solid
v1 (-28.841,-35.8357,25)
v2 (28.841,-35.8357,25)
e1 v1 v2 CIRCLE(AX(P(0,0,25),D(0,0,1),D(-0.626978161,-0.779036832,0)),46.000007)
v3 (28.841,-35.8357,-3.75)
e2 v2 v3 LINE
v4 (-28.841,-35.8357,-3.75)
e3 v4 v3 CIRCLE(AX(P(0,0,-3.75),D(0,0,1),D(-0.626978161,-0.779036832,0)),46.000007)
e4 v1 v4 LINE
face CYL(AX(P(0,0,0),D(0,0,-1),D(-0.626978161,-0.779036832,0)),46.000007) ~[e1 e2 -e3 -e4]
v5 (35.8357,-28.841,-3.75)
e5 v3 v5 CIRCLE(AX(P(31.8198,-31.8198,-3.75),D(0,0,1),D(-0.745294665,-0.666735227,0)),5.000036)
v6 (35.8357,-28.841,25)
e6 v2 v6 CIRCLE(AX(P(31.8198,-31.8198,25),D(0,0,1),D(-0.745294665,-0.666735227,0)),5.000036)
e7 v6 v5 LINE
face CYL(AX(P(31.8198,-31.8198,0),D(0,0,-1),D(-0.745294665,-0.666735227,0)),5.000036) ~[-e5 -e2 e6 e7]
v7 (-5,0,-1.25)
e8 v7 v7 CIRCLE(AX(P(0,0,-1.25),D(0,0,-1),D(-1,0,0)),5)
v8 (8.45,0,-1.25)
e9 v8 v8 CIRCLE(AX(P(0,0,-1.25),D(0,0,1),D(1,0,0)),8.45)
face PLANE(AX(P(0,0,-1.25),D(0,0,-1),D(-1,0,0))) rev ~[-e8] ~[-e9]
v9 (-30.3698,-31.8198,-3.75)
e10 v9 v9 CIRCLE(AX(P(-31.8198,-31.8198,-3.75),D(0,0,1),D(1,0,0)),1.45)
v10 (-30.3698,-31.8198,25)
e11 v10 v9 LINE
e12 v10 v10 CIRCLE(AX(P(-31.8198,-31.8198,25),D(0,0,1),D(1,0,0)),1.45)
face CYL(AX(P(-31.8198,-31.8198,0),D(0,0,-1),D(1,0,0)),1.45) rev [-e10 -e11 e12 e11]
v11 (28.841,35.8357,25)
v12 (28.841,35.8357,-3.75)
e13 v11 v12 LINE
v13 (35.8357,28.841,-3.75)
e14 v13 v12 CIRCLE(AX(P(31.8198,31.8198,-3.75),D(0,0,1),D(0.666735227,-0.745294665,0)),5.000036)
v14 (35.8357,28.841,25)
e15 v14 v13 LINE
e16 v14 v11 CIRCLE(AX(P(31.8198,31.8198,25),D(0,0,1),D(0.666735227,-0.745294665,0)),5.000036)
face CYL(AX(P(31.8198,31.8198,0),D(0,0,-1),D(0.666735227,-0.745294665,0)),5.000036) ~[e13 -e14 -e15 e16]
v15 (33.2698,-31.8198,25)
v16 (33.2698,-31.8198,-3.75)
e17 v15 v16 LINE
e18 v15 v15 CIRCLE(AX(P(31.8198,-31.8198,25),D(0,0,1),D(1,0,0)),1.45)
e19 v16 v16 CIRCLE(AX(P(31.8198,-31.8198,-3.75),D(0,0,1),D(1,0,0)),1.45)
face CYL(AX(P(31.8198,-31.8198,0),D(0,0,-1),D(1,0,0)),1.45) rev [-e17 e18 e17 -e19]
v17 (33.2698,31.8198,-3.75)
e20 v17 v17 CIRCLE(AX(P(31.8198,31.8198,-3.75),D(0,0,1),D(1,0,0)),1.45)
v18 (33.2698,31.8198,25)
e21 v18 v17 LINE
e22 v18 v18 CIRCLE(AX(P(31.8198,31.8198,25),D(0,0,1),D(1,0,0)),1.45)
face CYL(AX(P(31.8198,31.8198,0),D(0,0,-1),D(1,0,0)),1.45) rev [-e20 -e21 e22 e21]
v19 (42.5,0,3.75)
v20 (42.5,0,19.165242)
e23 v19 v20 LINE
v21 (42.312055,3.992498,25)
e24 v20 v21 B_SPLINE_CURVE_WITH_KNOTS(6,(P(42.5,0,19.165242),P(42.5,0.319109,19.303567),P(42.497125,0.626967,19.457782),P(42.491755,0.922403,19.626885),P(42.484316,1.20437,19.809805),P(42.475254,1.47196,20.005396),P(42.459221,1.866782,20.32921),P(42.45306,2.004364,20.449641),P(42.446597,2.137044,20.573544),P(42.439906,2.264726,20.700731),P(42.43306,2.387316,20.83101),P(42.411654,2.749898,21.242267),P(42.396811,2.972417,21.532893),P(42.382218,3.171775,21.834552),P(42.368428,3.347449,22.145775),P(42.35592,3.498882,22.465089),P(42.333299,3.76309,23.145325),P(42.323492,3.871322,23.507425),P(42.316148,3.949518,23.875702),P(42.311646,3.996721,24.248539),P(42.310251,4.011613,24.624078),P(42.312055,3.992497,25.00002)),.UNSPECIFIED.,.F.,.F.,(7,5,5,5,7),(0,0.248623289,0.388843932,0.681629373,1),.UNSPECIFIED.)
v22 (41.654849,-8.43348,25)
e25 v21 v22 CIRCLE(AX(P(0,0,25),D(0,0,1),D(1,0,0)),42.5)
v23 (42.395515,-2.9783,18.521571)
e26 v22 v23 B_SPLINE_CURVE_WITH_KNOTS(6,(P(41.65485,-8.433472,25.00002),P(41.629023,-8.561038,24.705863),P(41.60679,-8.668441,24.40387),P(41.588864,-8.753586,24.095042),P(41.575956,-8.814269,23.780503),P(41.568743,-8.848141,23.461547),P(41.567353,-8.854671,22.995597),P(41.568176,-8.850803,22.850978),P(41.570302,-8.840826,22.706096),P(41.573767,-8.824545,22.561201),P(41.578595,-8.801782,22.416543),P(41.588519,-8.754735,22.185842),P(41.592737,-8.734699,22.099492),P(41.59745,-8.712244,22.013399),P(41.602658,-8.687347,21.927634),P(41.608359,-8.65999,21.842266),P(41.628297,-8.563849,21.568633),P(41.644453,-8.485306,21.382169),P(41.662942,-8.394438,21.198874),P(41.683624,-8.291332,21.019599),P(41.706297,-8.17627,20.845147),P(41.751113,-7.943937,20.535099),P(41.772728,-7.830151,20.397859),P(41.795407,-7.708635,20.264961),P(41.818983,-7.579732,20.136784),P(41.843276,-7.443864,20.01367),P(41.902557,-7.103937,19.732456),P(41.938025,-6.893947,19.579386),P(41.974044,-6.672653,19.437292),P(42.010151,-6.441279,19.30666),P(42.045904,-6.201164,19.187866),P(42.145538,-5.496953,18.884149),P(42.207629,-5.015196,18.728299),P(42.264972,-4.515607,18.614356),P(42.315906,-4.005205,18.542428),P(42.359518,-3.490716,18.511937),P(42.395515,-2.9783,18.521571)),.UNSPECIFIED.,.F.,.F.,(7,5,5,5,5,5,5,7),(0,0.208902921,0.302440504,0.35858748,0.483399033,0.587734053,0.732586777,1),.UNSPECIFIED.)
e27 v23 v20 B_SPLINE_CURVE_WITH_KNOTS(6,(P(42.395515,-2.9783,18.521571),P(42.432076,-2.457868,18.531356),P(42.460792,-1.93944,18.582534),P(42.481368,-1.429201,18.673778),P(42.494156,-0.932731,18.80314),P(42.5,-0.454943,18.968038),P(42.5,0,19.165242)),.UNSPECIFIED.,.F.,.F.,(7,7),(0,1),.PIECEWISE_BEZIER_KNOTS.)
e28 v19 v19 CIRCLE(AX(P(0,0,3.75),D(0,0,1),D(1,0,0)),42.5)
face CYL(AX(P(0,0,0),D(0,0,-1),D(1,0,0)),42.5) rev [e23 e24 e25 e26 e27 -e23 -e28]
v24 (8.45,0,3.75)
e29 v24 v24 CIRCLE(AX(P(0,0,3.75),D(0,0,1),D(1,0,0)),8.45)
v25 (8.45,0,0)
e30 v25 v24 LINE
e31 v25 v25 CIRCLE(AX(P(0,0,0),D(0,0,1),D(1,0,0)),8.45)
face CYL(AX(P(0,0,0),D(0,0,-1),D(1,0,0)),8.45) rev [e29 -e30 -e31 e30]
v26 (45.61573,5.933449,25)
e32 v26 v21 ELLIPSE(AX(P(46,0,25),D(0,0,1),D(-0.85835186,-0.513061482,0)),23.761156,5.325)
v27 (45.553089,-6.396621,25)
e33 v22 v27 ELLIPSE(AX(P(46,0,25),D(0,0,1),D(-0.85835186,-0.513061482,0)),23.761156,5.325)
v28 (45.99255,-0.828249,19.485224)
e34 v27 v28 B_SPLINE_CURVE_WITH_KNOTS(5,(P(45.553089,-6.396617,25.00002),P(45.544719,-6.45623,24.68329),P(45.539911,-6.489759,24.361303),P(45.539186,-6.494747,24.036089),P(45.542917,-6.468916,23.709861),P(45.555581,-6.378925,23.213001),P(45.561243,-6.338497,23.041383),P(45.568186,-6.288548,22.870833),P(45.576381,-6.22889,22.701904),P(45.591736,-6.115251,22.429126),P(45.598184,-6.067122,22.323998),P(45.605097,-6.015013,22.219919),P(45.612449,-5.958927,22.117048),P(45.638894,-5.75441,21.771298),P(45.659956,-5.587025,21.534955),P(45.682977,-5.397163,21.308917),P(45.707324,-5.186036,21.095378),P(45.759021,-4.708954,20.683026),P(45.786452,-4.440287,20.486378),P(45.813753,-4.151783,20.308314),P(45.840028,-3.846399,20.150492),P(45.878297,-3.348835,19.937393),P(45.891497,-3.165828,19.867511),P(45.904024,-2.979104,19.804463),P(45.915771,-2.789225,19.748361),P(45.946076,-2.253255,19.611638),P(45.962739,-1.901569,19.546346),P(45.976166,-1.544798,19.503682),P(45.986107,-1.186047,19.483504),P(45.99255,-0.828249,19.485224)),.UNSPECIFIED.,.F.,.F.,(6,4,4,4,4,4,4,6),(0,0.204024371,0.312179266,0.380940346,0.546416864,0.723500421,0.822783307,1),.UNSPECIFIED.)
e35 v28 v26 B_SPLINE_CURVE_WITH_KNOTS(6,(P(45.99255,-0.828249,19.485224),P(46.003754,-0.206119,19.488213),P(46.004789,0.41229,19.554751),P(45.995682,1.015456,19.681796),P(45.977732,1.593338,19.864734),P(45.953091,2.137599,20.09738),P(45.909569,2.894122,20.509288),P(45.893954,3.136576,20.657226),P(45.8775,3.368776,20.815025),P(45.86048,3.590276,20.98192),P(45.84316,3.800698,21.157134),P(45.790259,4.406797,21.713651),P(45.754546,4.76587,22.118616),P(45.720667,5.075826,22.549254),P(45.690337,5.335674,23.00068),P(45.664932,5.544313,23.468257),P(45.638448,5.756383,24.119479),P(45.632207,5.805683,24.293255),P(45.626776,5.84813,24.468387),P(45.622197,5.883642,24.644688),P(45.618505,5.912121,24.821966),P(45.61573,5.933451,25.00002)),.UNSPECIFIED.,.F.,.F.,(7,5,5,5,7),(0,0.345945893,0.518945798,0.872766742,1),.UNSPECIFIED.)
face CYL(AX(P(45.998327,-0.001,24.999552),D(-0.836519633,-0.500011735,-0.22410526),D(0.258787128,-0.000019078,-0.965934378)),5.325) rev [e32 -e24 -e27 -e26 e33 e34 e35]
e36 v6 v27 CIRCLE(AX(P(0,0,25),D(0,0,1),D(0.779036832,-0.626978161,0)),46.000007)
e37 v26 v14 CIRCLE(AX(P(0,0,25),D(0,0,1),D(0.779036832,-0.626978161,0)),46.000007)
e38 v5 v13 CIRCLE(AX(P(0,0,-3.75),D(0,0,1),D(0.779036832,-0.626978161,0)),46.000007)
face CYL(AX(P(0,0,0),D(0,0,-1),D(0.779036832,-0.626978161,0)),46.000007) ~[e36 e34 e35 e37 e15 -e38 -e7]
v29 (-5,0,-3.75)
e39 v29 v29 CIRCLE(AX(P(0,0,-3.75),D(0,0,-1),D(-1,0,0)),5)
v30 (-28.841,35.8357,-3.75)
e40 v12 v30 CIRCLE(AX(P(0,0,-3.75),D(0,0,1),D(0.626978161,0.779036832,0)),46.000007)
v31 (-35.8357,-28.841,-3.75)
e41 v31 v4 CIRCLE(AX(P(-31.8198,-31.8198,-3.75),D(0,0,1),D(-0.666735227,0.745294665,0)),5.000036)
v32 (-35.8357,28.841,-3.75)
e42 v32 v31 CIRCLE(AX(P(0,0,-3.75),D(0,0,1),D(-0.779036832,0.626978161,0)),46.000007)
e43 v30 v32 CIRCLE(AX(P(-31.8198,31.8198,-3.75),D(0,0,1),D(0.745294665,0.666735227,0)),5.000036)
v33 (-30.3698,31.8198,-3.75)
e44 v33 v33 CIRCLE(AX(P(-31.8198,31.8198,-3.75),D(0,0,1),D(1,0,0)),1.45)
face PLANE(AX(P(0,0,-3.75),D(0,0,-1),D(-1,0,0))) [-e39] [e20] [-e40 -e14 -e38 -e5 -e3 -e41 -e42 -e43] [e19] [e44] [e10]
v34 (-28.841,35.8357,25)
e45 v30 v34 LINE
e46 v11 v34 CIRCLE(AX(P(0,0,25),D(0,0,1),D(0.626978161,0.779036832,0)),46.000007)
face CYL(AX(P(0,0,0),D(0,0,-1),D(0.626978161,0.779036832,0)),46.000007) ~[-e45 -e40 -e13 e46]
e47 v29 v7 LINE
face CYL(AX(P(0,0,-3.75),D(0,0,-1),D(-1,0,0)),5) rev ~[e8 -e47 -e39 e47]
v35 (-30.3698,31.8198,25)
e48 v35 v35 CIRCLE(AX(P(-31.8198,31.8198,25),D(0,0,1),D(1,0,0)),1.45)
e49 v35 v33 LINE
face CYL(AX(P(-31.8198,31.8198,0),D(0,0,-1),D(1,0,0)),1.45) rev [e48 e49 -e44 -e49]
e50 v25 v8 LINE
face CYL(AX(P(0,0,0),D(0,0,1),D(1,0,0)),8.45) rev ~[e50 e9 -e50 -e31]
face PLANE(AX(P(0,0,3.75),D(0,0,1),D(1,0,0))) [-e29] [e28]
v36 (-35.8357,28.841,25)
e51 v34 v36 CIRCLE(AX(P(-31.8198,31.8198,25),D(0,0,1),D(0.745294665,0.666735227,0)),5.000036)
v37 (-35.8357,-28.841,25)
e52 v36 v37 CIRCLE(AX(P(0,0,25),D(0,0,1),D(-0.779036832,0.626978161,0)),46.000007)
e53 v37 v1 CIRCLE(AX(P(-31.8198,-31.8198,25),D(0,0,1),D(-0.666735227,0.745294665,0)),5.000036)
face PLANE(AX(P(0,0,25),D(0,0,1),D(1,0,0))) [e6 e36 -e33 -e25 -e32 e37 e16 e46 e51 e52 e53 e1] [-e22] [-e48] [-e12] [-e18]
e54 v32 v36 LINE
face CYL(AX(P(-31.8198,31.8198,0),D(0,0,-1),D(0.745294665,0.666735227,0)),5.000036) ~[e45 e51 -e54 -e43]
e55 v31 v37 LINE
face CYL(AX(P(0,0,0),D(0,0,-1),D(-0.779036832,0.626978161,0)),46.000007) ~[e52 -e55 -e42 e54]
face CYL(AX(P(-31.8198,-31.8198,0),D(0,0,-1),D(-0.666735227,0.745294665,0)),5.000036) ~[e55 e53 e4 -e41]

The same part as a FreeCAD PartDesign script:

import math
import FreeCAD as App
import Part
import Sketcher
Q = App.Units.Quantity

doc = App.newDocument("Part")
body = doc.addObject("PartDesign::Body", "Body")

sketch1 = body.newObject("Sketcher::SketchObject", "Sketch")
sketch1.AttachmentSupport = (doc.getObject("XY_Plane"), [""])
sketch1.MapMode = "FlatFace"
sketch1.addGeometry(Part.Circle(App.Vector(0, 0, 0), App.Vector(0, 0, 1), 42), False)
sketch1.addGeometry(Part.Circle(App.Vector(0, 0, 0), App.Vector(0, 0, 1), 8), False)
sketch1.addConstraint(Sketcher.Constraint("Coincident", 0, 3, -1, 1))
sketch1.addConstraint(Sketcher.Constraint("Coincident", 1, 3, -1, 1))
sketch1.addConstraint(Sketcher.Constraint("Diameter", 0, Q("85 mm")))
sketch1.addConstraint(Sketcher.Constraint("Diameter", 1, Q("16.9 mm")))
pad1 = body.newObject("PartDesign::Pad", "Pad")
pad1.Profile = sketch1
pad1.Length = 7.5
pad1.Midplane = True

sketch2 = body.newObject("Sketcher::SketchObject", "Sketch001")
sketch2.AttachmentSupport = (doc.getObject("XY_Plane"), [""])
sketch2.MapMode = "FlatFace"
sketch2.addGeometry(Part.ArcOfCircle(Part.Circle(App.Vector(0, 0, 0), App.Vector(0, 0, 1), 46), math.radians(51), math.radians(129)), False)
sketch2.addGeometry(Part.ArcOfCircle(Part.Circle(App.Vector(-31.8, 31.8, 0), App.Vector(0, 0, 1), 5), math.radians(53), math.radians(217)), False)
sketch2.addGeometry(Part.ArcOfCircle(Part.Circle(App.Vector(0, 0, 0), App.Vector(0, 0, 1), 46), math.radians(141), math.radians(219)), False)
sketch2.addGeometry(Part.ArcOfCircle(Part.Circle(App.Vector(-31.8, -31.8, 0), App.Vector(0, 0, 1), 5), math.radians(143), math.radians(307)), False)
sketch2.addGeometry(Part.ArcOfCircle(Part.Circle(App.Vector(0, 0, 0), App.Vector(0, 0, 1), 46), math.radians(-129), math.radians(-51)), False)
sketch2.addGeometry(Part.ArcOfCircle(Part.Circle(App.Vector(31.8, -31.8, 0), App.Vector(0, 0, 1), 5), math.radians(-127), math.radians(37)), False)
sketch2.addGeometry(Part.ArcOfCircle(Part.Circle(App.Vector(0, 0, 0), App.Vector(0, 0, 1), 46), math.radians(-39), math.radians(39)), False)
sketch2.addGeometry(Part.ArcOfCircle(Part.Circle(App.Vector(31.8, 31.8, 0), App.Vector(0, 0, 1), 5), math.radians(-37), math.radians(127)), False)
sketch2.addGeometry(Part.Circle(App.Vector(-31.8, -31.8, 0), App.Vector(0, 0, 1), 1.4), False)
sketch2.addGeometry(Part.Circle(App.Vector(31.8, -31.8, 0), App.Vector(0, 0, 1), 1.4), False)
sketch2.addGeometry(Part.Circle(App.Vector(-31.8, 31.8, 0), App.Vector(0, 0, 1), 1.4), False)
sketch2.addGeometry(Part.Circle(App.Vector(0, 0, 0), App.Vector(0, 0, 1), 42.5), False)
sketch2.addGeometry(Part.Circle(App.Vector(31.8, 31.8, 0), App.Vector(0, 0, 1), 1.4), False)
sketch2.addConstraint(Sketcher.Constraint("Coincident", 0, 2, 1, 1))
sketch2.addConstraint(Sketcher.Constraint("Coincident", 1, 2, 2, 1))
sketch2.addConstraint(Sketcher.Constraint("Coincident", 2, 2, 3, 1))
sketch2.addConstraint(Sketcher.Constraint("Coincident", 3, 2, 4, 1))
sketch2.addConstraint(Sketcher.Constraint("Coincident", 4, 2, 5, 1))
sketch2.addConstraint(Sketcher.Constraint("Coincident", 5, 2, 6, 1))
sketch2.addConstraint(Sketcher.Constraint("Coincident", 6, 2, 7, 1))
sketch2.addConstraint(Sketcher.Constraint("Coincident", 7, 2, 0, 1))
sketch2.addConstraint(Sketcher.Constraint("Coincident", 0, 3, -1, 1))
sketch2.addConstraint(Sketcher.Constraint("Coincident", 2, 3, -1, 1))
sketch2.addConstraint(Sketcher.Constraint("Coincident", 4, 3, -1, 1))
sketch2.addConstraint(Sketcher.Constraint("Coincident", 6, 3, -1, 1))
sketch2.addConstraint(Sketcher.Constraint("Coincident", 11, 3, -1, 1))
sketch2.addConstraint(Sketcher.Constraint("Coincident", 8, 3, 3, 3))
sketch2.addConstraint(Sketcher.Constraint("Coincident", 9, 3, 5, 3))
sketch2.addConstraint(Sketcher.Constraint("Coincident", 10, 3, 1, 3))
sketch2.addConstraint(Sketcher.Constraint("Coincident", 12, 3, 7, 3))
sketch2.addConstraint(Sketcher.Constraint("Equal", 0, 2))
sketch2.addConstraint(Sketcher.Constraint("Equal", 1, 3))
sketch2.addConstraint(Sketcher.Constraint("Equal", 2, 4))
sketch2.addConstraint(Sketcher.Constraint("Equal", 3, 5))
sketch2.addConstraint(Sketcher.Constraint("Equal", 4, 6))
sketch2.addConstraint(Sketcher.Constraint("Equal", 5, 7))
sketch2.addConstraint(Sketcher.Constraint("Equal", 8, 9))
sketch2.addConstraint(Sketcher.Constraint("Equal", 9, 10))
sketch2.addConstraint(Sketcher.Constraint("Equal", 10, 12))
sketch2.addConstraint(Sketcher.Constraint("Symmetric", 1, 3, 5, 3, -1, 1))
sketch2.addConstraint(Sketcher.Constraint("Symmetric", 3, 3, 7, 3, -1, 1))
sketch2.addConstraint(Sketcher.Constraint("Symmetric", 3, 3, 5, 3, -2))
sketch2.addConstraint(Sketcher.Constraint("Diameter", 11, Q("85 mm")))
sketch2.addConstraint(Sketcher.Constraint("Radius", 0, Q("46 mm")))
sketch2.addConstraint(Sketcher.Constraint("Radius", 1, Q("5 mm")))
sketch2.addConstraint(Sketcher.Constraint("Diameter", 8, Q("2.9 mm")))
sketch2.addConstraint(Sketcher.Constraint("DistanceX", 0, 2, -1, 1, Q("28.841 mm")))
sketch2.addConstraint(Sketcher.Constraint("DistanceY", -1, 1, 1, 2, Q("28.841 mm")))
pad2 = body.newObject("PartDesign::Pad", "Pad001")
pad2.Profile = sketch2
pad2.Length = 3.75
pad2.Reversed = True

sketch3 = body.newObject("Sketcher::SketchObject", "Sketch002")
sketch3.AttachmentSupport = (doc.getObject("XY_Plane"), [""])
sketch3.MapMode = "FlatFace"
sketch3.addGeometry(Part.ArcOfCircle(Part.Circle(App.Vector(0, 0, 0), App.Vector(0, 0, 1), 46), math.radians(51), math.radians(129)), False)
sketch3.addGeometry(Part.ArcOfCircle(Part.Circle(App.Vector(-31.8, 31.8, 0), App.Vector(0, 0, 1), 5), math.radians(53), math.radians(217)), False)
sketch3.addGeometry(Part.ArcOfCircle(Part.Circle(App.Vector(0, 0, 0), App.Vector(0, 0, 1), 46), math.radians(141), math.radians(219)), False)
sketch3.addGeometry(Part.ArcOfCircle(Part.Circle(App.Vector(-31.8, -31.8, 0), App.Vector(0, 0, 1), 5), math.radians(143), math.radians(307)), False)
sketch3.addGeometry(Part.ArcOfCircle(Part.Circle(App.Vector(0, 0, 0), App.Vector(0, 0, 1), 46), math.radians(-129), math.radians(-51)), False)
sketch3.addGeometry(Part.ArcOfCircle(Part.Circle(App.Vector(31.8, -31.8, 0), App.Vector(0, 0, 1), 5), math.radians(-127), math.radians(37)), False)
sketch3.addGeometry(Part.ArcOfCircle(Part.Circle(App.Vector(0, 0, 0), App.Vector(0, 0, 1), 46), math.radians(-39), math.radians(39)), False)
sketch3.addGeometry(Part.ArcOfCircle(Part.Circle(App.Vector(31.8, 31.8, 0), App.Vector(0, 0, 1), 5), math.radians(-37), math.radians(127)), False)
sketch3.addGeometry(Part.Circle(App.Vector(-31.8, -31.8, 0), App.Vector(0, 0, 1), 1.4), False)
sketch3.addGeometry(Part.Circle(App.Vector(31.8, -31.8, 0), App.Vector(0, 0, 1), 1.4), False)
sketch3.addGeometry(Part.Circle(App.Vector(-31.8, 31.8, 0), App.Vector(0, 0, 1), 1.4), False)
sketch3.addGeometry(Part.Circle(App.Vector(0, 0, 0), App.Vector(0, 0, 1), 42.5), False)
sketch3.addGeometry(Part.Circle(App.Vector(31.8, 31.8, 0), App.Vector(0, 0, 1), 1.4), False)
sketch3.addConstraint(Sketcher.Constraint("Coincident", 0, 2, 1, 1))
sketch3.addConstraint(Sketcher.Constraint("Coincident", 1, 2, 2, 1))
sketch3.addConstraint(Sketcher.Constraint("Coincident", 2, 2, 3, 1))
sketch3.addConstraint(Sketcher.Constraint("Coincident", 3, 2, 4, 1))
sketch3.addConstraint(Sketcher.Constraint("Coincident", 4, 2, 5, 1))
sketch3.addConstraint(Sketcher.Constraint("Coincident", 5, 2, 6, 1))
sketch3.addConstraint(Sketcher.Constraint("Coincident", 6, 2, 7, 1))
sketch3.addConstraint(Sketcher.Constraint("Coincident", 7, 2, 0, 1))
sketch3.addConstraint(Sketcher.Constraint("Coincident", 0, 3, -1, 1))
sketch3.addConstraint(Sketcher.Constraint("Coincident", 2, 3, -1, 1))
sketch3.addConstraint(Sketcher.Constraint("Coincident", 4, 3, -1, 1))
sketch3.addConstraint(Sketcher.Constraint("Coincident", 6, 3, -1, 1))
sketch3.addConstraint(Sketcher.Constraint("Coincident", 11, 3, -1, 1))
sketch3.addConstraint(Sketcher.Constraint("Coincident", 8, 3, 3, 3))
sketch3.addConstraint(Sketcher.Constraint("Coincident", 9, 3, 5, 3))
sketch3.addConstraint(Sketcher.Constraint("Coincident", 10, 3, 1, 3))
sketch3.addConstraint(Sketcher.Constraint("Coincident", 12, 3, 7, 3))
sketch3.addConstraint(Sketcher.Constraint("Equal", 0, 2))
sketch3.addConstraint(Sketcher.Constraint("Equal", 1, 3))
sketch3.addConstraint(Sketcher.Constraint("Equal", 2, 4))
sketch3.addConstraint(Sketcher.Constraint("Equal", 3, 5))
sketch3.addConstraint(Sketcher.Constraint("Equal", 4, 6))
sketch3.addConstraint(Sketcher.Constraint("Equal", 5, 7))
sketch3.addConstraint(Sketcher.Constraint("Equal", 8, 9))
sketch3.addConstraint(Sketcher.Constraint("Equal", 9, 10))
sketch3.addConstraint(Sketcher.Constraint("Equal", 10, 12))
sketch3.addConstraint(Sketcher.Constraint("Symmetric", 1, 3, 5, 3, -1, 1))
sketch3.addConstraint(Sketcher.Constraint("Symmetric", 3, 3, 7, 3, -1, 1))
sketch3.addConstraint(Sketcher.Constraint("Symmetric", 3, 3, 5, 3, -2))
sketch3.addConstraint(Sketcher.Constraint("Diameter", 11, Q("85 mm")))
sketch3.addConstraint(Sketcher.Constraint("Radius", 0, Q("46 mm")))
sketch3.addConstraint(Sketcher.Constraint("Radius", 1, Q("5 mm")))
sketch3.addConstraint(Sketcher.Constraint("Diameter", 8, Q("2.9 mm")))
sketch3.addConstraint(Sketcher.Constraint("DistanceX", 0, 2, -1, 1, Q("28.841 mm")))
sketch3.addConstraint(Sketcher.Constraint("DistanceY", -1, 1, 1, 2, Q("28.841 mm")))
pad3 = body.newObject("PartDesign::Pad", "Pad002")
pad3.Profile = sketch3
pad3.Length = 25

sketch4 = body.newObject("Sketcher::SketchObject", "Sketch003")
sketch4.Placement = App.Placement(App.Vector(46, 0, 25), App.Rotation(App.Vector(0.258787128, -0.000019078, -0.965934378), App.Vector(-0.482974249, 0.866018628, -0.12941256), App.Vector(0.836519633, 0.500011735, 0.22410526), "ZXY"))
sketch4.addGeometry(Part.Circle(App.Vector(0, 0, 0), App.Vector(0, 0, 1), 5), False)
sketch4.addConstraint(Sketcher.Constraint("Coincident", 0, 3, -1, 1))
sketch4.addConstraint(Sketcher.Constraint("Diameter", 0, Q("10.65 mm")))
pocket1 = body.newObject("PartDesign::Pocket", "Pocket")
pocket1.Profile = sketch4
pocket1.Length = 25
pocket1.Midplane = True

sketch5 = body.newObject("Sketcher::SketchObject", "Sketch004")
sketch5.AttachmentSupport = (doc.getObject("XY_Plane"), [""])
sketch5.MapMode = "FlatFace"
sketch5.AttachmentOffset = App.Placement(App.Vector(0, 0, -3.75), App.Rotation())
sketch5.addGeometry(Part.Circle(App.Vector(0, 0, 0), App.Vector(0, 0, 1), 8), False)
sketch5.addGeometry(Part.Circle(App.Vector(0, 0, 0), App.Vector(0, 0, 1), 5), False)
sketch5.addConstraint(Sketcher.Constraint("Coincident", 0, 3, -1, 1))
sketch5.addConstraint(Sketcher.Constraint("Coincident", 1, 3, -1, 1))
sketch5.addConstraint(Sketcher.Constraint("Diameter", 1, Q("10 mm")))
sketch5.addConstraint(Sketcher.Constraint("Diameter", 0, Q("16.9 mm")))
pad4 = body.newObject("PartDesign::Pad", "Pad003")
pad4.Profile = sketch5
pad4.Length = 2.5

doc.recompute()
